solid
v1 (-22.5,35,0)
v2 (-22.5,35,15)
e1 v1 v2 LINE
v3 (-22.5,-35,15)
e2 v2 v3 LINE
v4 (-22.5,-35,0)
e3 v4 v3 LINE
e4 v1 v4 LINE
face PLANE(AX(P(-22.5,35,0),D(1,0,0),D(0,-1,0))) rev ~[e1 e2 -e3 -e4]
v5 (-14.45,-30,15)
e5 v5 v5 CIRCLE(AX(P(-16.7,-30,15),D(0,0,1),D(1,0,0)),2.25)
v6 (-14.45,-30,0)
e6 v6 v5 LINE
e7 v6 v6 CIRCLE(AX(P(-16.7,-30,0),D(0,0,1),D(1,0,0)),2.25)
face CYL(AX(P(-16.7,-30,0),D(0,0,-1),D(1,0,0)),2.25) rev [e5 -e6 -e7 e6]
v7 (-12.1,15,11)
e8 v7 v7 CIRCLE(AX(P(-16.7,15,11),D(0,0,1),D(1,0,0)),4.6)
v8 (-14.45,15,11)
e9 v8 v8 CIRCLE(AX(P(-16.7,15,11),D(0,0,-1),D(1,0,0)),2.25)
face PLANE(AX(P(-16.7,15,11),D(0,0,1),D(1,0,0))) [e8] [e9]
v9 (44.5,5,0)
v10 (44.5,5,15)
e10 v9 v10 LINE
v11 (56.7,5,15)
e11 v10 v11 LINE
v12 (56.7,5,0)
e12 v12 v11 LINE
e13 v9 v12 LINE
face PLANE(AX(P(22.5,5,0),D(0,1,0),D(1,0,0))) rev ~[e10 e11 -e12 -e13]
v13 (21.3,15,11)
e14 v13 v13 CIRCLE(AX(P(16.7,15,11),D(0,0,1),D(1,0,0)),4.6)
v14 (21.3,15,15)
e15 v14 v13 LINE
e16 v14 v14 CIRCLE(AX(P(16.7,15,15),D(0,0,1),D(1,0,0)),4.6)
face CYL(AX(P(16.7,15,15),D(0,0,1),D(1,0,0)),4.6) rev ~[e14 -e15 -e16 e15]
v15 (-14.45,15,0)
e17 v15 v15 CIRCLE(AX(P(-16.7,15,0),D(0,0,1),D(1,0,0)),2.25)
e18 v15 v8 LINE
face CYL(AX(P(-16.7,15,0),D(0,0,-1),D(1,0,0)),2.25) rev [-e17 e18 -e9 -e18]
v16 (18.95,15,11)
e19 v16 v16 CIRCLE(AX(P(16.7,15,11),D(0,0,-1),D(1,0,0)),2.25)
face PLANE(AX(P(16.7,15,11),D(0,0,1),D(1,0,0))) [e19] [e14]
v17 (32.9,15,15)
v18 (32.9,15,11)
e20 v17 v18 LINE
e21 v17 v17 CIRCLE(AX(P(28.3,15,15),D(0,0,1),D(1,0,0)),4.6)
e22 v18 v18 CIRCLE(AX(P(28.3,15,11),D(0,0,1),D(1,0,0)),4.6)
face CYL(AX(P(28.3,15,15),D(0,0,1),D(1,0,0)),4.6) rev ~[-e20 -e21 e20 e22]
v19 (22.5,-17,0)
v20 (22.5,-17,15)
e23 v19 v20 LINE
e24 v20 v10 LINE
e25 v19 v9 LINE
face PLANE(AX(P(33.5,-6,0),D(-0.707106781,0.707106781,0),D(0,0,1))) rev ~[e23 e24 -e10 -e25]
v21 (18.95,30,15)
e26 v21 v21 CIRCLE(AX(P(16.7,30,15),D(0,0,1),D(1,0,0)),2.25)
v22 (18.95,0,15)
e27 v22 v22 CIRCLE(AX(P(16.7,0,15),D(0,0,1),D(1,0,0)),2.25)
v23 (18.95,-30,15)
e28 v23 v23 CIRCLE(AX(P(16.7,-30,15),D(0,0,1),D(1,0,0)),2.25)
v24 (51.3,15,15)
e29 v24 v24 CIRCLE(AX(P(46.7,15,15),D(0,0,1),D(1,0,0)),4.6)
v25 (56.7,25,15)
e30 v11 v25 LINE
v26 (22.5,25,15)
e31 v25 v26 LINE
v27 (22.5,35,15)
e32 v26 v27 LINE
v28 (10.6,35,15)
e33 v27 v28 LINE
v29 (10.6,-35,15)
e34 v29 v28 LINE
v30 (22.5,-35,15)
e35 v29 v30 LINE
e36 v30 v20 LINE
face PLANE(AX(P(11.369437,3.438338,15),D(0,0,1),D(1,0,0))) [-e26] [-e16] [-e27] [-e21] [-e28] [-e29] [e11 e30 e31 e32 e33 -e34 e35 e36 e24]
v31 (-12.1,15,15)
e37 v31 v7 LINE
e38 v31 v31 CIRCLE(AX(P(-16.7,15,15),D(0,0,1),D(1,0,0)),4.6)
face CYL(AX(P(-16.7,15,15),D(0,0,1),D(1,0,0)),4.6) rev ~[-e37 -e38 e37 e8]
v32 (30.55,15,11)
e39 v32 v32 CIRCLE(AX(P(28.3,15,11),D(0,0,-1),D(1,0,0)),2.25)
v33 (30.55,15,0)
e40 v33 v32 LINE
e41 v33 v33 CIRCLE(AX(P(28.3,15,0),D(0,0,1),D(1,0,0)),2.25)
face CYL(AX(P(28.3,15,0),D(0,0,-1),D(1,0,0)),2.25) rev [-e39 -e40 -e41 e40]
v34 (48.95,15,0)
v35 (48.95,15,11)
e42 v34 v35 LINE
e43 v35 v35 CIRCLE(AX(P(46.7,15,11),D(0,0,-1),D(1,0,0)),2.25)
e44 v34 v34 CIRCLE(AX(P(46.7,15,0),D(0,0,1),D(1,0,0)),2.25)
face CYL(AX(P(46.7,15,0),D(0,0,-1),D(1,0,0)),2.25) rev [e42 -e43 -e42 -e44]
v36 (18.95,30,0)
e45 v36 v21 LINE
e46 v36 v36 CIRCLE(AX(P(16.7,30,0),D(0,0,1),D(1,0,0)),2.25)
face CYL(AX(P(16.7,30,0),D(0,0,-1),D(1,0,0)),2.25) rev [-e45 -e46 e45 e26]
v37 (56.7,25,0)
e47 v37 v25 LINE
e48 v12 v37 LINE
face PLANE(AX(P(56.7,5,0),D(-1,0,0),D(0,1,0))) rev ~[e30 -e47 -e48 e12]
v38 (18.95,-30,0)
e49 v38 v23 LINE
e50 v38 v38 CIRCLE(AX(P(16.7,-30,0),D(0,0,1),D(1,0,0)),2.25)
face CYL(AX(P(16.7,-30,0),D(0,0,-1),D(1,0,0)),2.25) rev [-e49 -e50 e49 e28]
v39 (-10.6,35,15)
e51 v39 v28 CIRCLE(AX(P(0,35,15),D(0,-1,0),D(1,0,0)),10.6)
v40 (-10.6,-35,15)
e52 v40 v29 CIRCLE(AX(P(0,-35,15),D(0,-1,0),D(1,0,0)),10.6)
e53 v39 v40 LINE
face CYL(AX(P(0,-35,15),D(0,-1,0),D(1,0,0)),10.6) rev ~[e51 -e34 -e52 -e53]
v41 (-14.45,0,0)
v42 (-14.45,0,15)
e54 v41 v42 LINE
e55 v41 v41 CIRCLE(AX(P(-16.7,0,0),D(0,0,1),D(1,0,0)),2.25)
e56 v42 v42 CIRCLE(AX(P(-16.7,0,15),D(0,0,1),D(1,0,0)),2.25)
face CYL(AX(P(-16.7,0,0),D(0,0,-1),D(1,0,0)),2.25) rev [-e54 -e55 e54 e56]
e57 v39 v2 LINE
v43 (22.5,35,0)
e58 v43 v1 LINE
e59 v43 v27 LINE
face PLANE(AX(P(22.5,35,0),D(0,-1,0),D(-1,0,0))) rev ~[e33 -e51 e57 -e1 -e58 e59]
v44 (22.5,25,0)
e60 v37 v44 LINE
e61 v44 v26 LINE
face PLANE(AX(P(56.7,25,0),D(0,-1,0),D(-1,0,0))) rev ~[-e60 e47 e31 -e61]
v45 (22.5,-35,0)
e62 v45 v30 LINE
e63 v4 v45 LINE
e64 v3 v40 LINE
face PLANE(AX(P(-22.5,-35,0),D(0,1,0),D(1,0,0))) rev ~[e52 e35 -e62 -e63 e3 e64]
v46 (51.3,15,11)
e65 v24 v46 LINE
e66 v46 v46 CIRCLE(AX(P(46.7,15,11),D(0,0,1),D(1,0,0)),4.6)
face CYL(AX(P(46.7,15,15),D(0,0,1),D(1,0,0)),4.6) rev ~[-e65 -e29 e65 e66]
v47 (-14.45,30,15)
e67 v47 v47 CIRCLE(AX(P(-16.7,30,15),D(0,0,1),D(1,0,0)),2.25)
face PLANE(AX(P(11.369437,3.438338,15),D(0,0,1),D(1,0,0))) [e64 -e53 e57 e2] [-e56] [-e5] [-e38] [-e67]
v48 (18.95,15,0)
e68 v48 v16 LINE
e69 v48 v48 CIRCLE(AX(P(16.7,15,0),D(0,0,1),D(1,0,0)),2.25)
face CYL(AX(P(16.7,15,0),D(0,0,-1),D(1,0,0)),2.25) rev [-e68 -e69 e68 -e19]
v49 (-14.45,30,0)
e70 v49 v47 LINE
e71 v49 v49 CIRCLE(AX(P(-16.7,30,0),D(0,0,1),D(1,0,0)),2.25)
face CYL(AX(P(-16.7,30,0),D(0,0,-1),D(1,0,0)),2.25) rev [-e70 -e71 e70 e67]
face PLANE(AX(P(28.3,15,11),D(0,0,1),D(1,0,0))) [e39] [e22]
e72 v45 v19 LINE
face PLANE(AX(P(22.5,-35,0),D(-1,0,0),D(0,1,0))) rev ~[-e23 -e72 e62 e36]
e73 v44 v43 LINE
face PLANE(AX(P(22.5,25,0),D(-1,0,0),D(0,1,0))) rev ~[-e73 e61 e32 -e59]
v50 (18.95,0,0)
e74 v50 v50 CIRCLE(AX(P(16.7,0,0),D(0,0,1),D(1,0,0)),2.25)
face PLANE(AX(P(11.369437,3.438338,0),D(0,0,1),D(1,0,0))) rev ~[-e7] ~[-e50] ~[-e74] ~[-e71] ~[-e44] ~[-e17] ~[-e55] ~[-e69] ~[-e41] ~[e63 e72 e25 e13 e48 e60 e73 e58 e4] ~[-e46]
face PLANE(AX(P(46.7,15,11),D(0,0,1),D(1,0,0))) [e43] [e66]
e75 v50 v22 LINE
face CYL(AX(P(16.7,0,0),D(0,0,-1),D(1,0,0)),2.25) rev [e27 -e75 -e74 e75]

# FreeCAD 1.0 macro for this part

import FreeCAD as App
import Part
import Sketcher

V = App.Vector


def edges_at(feature, points):
    """Names of the edges that pass closest to the given points."""
    edges = feature.Shape.Edges
    near = lambda p: min(range(len(edges)), key=lambda i: edges[i].distToShape(Part.Vertex(*p))[0])
    return sorted({f"Edge{near(p) + 1}" for p in points})

doc = App.newDocument("Part")
body = doc.addObject("PartDesign::Body", "Body")

# Sketch on XY plane
sketch1 = body.newObject("Sketcher::SketchObject", "Sketch")
sketch1.AttachmentSupport = (doc.getObject("XY_Plane"), [""])
sketch1.MapMode = "FlatFace"
sketch1.addGeometry([
    Part.LineSegment(V(-22.5, -35, 0), V(22.5, -35, 0)),  # 0
    Part.LineSegment(V(22.5, -35, 0), V(22.5, 5, 0)),  # 1
    Part.LineSegment(V(22.5, 5, 0), V(56.7, 5, 0)),  # 2
    Part.LineSegment(V(56.7, 5, 0), V(56.7, 25, 0)),  # 3
    Part.LineSegment(V(56.7, 25, 0), V(22.5, 25, 0)),  # 4
    Part.LineSegment(V(22.5, 25, 0), V(22.5, 35, 0)),  # 5
    Part.LineSegment(V(22.5, 35, 0), V(-22.5, 35, 0)),  # 6
    Part.LineSegment(V(-22.5, 35, 0), V(-22.5, -35, 0)),  # 7
    Part.Circle(V(-16.7, -30, 0), V(0, 0, 1), 2.2),  # 8
    Part.Circle(V(16.7, -30, 0), V(0, 0, 1), 2.2),  # 9
    Part.Circle(V(-16.7, 0, 0), V(0, 0, 1), 2.2),  # 10
    Part.Circle(V(-16.7, 15, 0), V(0, 0, 1), 2.2),  # 11
    Part.Circle(V(-16.7, 30, 0), V(0, 0, 1), 2.2),  # 12
    Part.Circle(V(16.7, 0, 0), V(0, 0, 1), 2.2),  # 13
    Part.Circle(V(16.7, 15, 0), V(0, 0, 1), 2.2),  # 14
    Part.Circle(V(28.3, 15, 0), V(0, 0, 1), 2.2),  # 15
    Part.Circle(V(46.7, 15, 0), V(0, 0, 1), 2.2),  # 16
    Part.Circle(V(16.7, 30, 0), V(0, 0, 1), 2.2),  # 17
], False)
sketch1.addConstraint([
    Sketcher.Constraint("Coincident", 0, 2, 1, 1),
    Sketcher.Constraint("Coincident", 1, 2, 2, 1),
    Sketcher.Constraint("Coincident", 2, 2, 3, 1),
    Sketcher.Constraint("Coincident", 3, 2, 4, 1),
    Sketcher.Constraint("Coincident", 4, 2, 5, 1),
    Sketcher.Constraint("Coincident", 5, 2, 6, 1),
    Sketcher.Constraint("Coincident", 6, 2, 7, 1),
    Sketcher.Constraint("Coincident", 7, 2, 0, 1),
    Sketcher.Constraint("Horizontal", 0),
    Sketcher.Constraint("Vertical", 1),
    Sketcher.Constraint("Horizontal", 2),
    Sketcher.Constraint("Vertical", 3),
    Sketcher.Constraint("Horizontal", 4),
    Sketcher.Constraint("Vertical", 5),
    Sketcher.Constraint("Horizontal", 6),
    Sketcher.Constraint("Vertical", 7),
    Sketcher.Constraint("Equal", 8, 9),
    Sketcher.Constraint("Equal", 9, 10),
    Sketcher.Constraint("Equal", 10, 11),
    Sketcher.Constraint("Equal", 11, 12),
    Sketcher.Constraint("Equal", 12, 13),
    Sketcher.Constraint("Equal", 13, 14),
    Sketcher.Constraint("Equal", 14, 15),
    Sketcher.Constraint("Equal", 15, 16),
    Sketcher.Constraint("Equal", 16, 17),
    Sketcher.Constraint("Symmetric", 9, 3, 12, 3, -1, 1),
    Sketcher.Constraint("Symmetric", 10, 3, 13, 3, -1, 1),
    Sketcher.Constraint("Symmetric", 8, 3, 17, 3, -1, 1),
    Sketcher.Constraint("Symmetric", 0, 2, 6, 2, -1, 1),
    Sketcher.Constraint("Symmetric", 8, 3, 9, 3, -2),
    Sketcher.Constraint("Symmetric", 11, 3, 14, 3, -2),
    Sketcher.Constraint("PointOnObject", 10, 3, -1),
    Sketcher.Constraint("Horizontal", 14, 3, 15, 3),
    Sketcher.Constraint("Horizontal", 15, 3, 16, 3),
    Sketcher.Constraint("Vertical", 8, 3, 10, 3),
    Sketcher.Constraint("Vertical", 10, 3, 11, 3),
    Sketcher.Constraint("Vertical", 1, 2, 4, 2),
    Sketcher.Constraint("Diameter", 8, 4.5),
    Sketcher.Constraint("DistanceX", 0, 1, 0, 2, 45.0),
    Sketcher.Constraint("DistanceY", 1, 1, 1, 2, 40.0),
    Sketcher.Constraint("DistanceY", 3, 1, 3, 2, 20.0),
    Sketcher.Constraint("DistanceY", 5, 1, 5, 2, 10.0),
    Sketcher.Constraint("DistanceX", 2, 1, 2, 2, 34.2),
    Sketcher.Constraint("DistanceY", 8, 3, -1, 1, 30.0),
    Sketcher.Constraint("DistanceY", -1, 1, 11, 3, 15.0),
    Sketcher.Constraint("DistanceX", 11, 3, 15, 3, 45.0),
    Sketcher.Constraint("DistanceX", 14, 3, 16, 3, 30.0),
    Sketcher.Constraint("DistanceX", 16, 3, 2, 2, 10.0),
])
pad1 = body.newObject("PartDesign::Pad", "Pad")
pad1.Profile = sketch1
pad1.Length = 15

# Sketch on XZ plane
sketch2 = body.newObject("Sketcher::SketchObject", "Sketch001")
sketch2.AttachmentSupport = (doc.getObject("XZ_Plane"), [""])
sketch2.MapMode = "FlatFace"
sketch2.AttachmentOffset = App.Placement(V(0, 0, 35), App.Rotation())
sketch2.addGeometry(Part.Circle(V(0, 15, 0), V(0, 0, 1), 11), False)
sketch2.addConstraint([
    Sketcher.Constraint("PointOnObject", 0, 3, -2),
    Sketcher.Constraint("Diameter", 0, 21.2),
    Sketcher.Constraint("DistanceY", -1, 1, 0, 3, 15.0),
])
pocket1 = body.newObject("PartDesign::Pocket", "Pocket")
pocket1.Profile = sketch2
pocket1.Type = "ThroughAll"

# Sketch on XY plane
sketch3 = body.newObject("Sketcher::SketchObject", "Sketch002")
sketch3.AttachmentSupport = (doc.getObject("XY_Plane"), [""])
sketch3.MapMode = "FlatFace"
sketch3.AttachmentOffset = App.Placement(V(0, 0, 15), App.Rotation())
sketch3.addGeometry([
    Part.Circle(V(-16.7, 15, 0), V(0, 0, 1), 4.6),
    Part.Circle(V(16.7, 15, 0), V(0, 0, 1), 4.6),
    Part.Circle(V(28.3, 15, 0), V(0, 0, 1), 4.6),
    Part.Circle(V(46.7, 15, 0), V(0, 0, 1), 4.6),
], False)
sketch3.addConstraint([
    Sketcher.Constraint("Equal", 0, 1),
    Sketcher.Constraint("Equal", 1, 2),
    Sketcher.Constraint("Equal", 2, 3),
    Sketcher.Constraint("Symmetric", 0, 3, 1, 3, -2),
    Sketcher.Constraint("Horizontal", 1, 3, 2, 3),
    Sketcher.Constraint("Horizontal", 2, 3, 3, 3),
    Sketcher.Constraint("Diameter", 0, 9.2),
    Sketcher.Constraint("DistanceY", -1, 1, 0, 3, 15.0),
    Sketcher.Constraint("DistanceX", 0, 3, 2, 3, 45.0),
    Sketcher.Constraint("DistanceX", 1, 3, 3, 3, 30.0),
    Sketcher.Constraint("DistanceX", 0, 3, -1, 1, 16.7),
])
pocket2 = body.newObject("PartDesign::Pocket", "Pocket001")
pocket2.Profile = sketch3
pocket2.Length = 4
doc.recompute()

chamfer = body.newObject("PartDesign::Chamfer", "Chamfer")
chamfer.Base = (pocket2, edges_at(pocket2, [(22.5, 5, 7.5)]))
chamfer.Size = 22

doc.recompute()
